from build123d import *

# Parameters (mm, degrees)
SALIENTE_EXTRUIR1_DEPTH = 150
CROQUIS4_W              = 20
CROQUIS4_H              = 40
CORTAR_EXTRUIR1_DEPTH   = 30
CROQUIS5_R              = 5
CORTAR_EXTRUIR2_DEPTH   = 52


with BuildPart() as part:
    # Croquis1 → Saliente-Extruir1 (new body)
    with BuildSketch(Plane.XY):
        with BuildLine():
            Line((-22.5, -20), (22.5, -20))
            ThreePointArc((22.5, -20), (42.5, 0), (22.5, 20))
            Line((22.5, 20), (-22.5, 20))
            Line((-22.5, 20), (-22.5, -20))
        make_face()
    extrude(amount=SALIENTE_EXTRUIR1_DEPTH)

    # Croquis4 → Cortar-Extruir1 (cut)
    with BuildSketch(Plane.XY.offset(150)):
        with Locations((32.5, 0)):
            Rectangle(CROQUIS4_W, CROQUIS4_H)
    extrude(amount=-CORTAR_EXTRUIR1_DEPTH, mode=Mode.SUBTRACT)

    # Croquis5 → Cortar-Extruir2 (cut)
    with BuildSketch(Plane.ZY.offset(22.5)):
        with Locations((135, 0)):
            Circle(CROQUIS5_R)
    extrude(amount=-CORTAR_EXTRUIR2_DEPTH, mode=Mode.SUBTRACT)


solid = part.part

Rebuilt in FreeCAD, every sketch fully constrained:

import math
import FreeCAD as App
import Part
import Sketcher

V = App.Vector

doc = App.newDocument("Part")
body = doc.addObject("PartDesign::Body", "Body")

# Sketch on XY plane
sketch1 = body.newObject("Sketcher::SketchObject", "Sketch")
sketch1.AttachmentSupport = (doc.getObject("XY_Plane"), [""])
sketch1.MapMode = "FlatFace"
sketch1.addGeometry(Part.LineSegment(V(-22.5, -20, 0), V(22.5, -20, 0)), False)
sketch1.addGeometry(Part.ArcOfCircle(Part.Circle(V(22.5, 0, 0), V(0, 0, 1), 20), math.radians(-90), math.radians(90)), False)
sketch1.addGeometry(Part.LineSegment(V(22.5, 20, 0), V(-22.5, 20, 0)), False)
sketch1.addGeometry(Part.LineSegment(V(-22.5, 20, 0), V(-22.5, -20, 0)), False)
sketch1.addConstraint(Sketcher.Constraint("Tangent", 0, 2, 1, 1))
sketch1.addConstraint(Sketcher.Constraint("Tangent", 1, 2, 2, 1))
sketch1.addConstraint(Sketcher.Constraint("Coincident", 2, 2, 3, 1))
sketch1.addConstraint(Sketcher.Constraint("Coincident", 3, 2, 0, 1))
sketch1.addConstraint(Sketcher.Constraint("Horizontal", 0))
sketch1.addConstraint(Sketcher.Constraint("Horizontal", 2))
sketch1.addConstraint(Sketcher.Constraint("Vertical", 3))
sketch1.addConstraint(Sketcher.Constraint("Symmetric", 0, 2, 2, 2, -1, 1))
sketch1.addConstraint(Sketcher.Constraint("Radius", 1, 20.0))
sketch1.addConstraint(Sketcher.Constraint("DistanceX", 0, 1, 0, 2, 45.0))
pad1 = body.newObject("PartDesign::Pad", "Pad")
pad1.Profile = sketch1
pad1.Length = 150

# Sketch on XY plane
sketch2 = body.newObject("Sketcher::SketchObject", "Sketch001")
sketch2.AttachmentSupport = (doc.getObject("XY_Plane"), [""])
sketch2.MapMode = "FlatFace"
sketch2.AttachmentOffset = App.Placement(V(0, 0, 150), App.Rotation())
sketch2.addGeometry(Part.LineSegment(V(22.5, 20, 0), V(22.5, -20, 0)), False)
sketch2.addGeometry(Part.LineSegment(V(22.5, -20, 0), V(42.5, -20, 0)), False)
sketch2.addGeometry(Part.LineSegment(V(42.5, -20, 0), V(42.5, 20, 0)), False)
sketch2.addGeometry(Part.LineSegment(V(42.5, 20, 0), V(22.5, 20, 0)), False)
sketch2.addConstraint(Sketcher.Constraint("Coincident", 0, 2, 1, 1))
sketch2.addConstraint(Sketcher.Constraint("Coincident", 1, 2, 2, 1))
sketch2.addConstraint(Sketcher.Constraint("Coincident", 2, 2, 3, 1))
sketch2.addConstraint(Sketcher.Constraint("Coincident", 3, 2, 0, 1))
sketch2.addConstraint(Sketcher.Constraint("Vertical", 0))
sketch2.addConstraint(Sketcher.Constraint("Horizontal", 1))
sketch2.addConstraint(Sketcher.Constraint("Vertical", 2))
sketch2.addConstraint(Sketcher.Constraint("Horizontal", 3))
sketch2.addConstraint(Sketcher.Constraint("DistanceX", 1, 1, 1, 2, 20.0))
sketch2.addConstraint(Sketcher.Constraint("DistanceY", 0, 2, 0, 1, 40.0))
sketch2.addConstraint(Sketcher.Constraint("DistanceY", 0, 2, -1, 1, 20.0))
sketch2.addConstraint(Sketcher.Constraint("DistanceX", -1, 1, 0, 2, 22.5))
pocket1 = body.newObject("PartDesign::Pocket", "Pocket")
pocket1.Profile = sketch2
pocket1.Length = 30

# Sketch on YZ plane
sketch3 = body.newObject("Sketcher::SketchObject", "Sketch002")
sketch3.AttachmentSupport = (doc.getObject("YZ_Plane"), [""])
sketch3.MapMode = "FlatFace"
sketch3.AttachmentOffset = App.Placement(V(0, 0, -22.5), App.Rotation())
sketch3.addGeometry(Part.Circle(V(0, 135, 0), V(0, 0, 1), 5), False)
sketch3.addConstraint(Sketcher.Constraint("PointOnObject", 0, 3, -2))
sketch3.addConstraint(Sketcher.Constraint("Diameter", 0, 10.0))
sketch3.addConstraint(Sketcher.Constraint("DistanceY", -1, 1, 0, 3, 135.0))
pocket2 = body.newObject("PartDesign::Pocket", "Pocket001")
pocket2.Profile = sketch3
pocket2.Length = 52
pocket2.Reversed = True

doc.recompute()
